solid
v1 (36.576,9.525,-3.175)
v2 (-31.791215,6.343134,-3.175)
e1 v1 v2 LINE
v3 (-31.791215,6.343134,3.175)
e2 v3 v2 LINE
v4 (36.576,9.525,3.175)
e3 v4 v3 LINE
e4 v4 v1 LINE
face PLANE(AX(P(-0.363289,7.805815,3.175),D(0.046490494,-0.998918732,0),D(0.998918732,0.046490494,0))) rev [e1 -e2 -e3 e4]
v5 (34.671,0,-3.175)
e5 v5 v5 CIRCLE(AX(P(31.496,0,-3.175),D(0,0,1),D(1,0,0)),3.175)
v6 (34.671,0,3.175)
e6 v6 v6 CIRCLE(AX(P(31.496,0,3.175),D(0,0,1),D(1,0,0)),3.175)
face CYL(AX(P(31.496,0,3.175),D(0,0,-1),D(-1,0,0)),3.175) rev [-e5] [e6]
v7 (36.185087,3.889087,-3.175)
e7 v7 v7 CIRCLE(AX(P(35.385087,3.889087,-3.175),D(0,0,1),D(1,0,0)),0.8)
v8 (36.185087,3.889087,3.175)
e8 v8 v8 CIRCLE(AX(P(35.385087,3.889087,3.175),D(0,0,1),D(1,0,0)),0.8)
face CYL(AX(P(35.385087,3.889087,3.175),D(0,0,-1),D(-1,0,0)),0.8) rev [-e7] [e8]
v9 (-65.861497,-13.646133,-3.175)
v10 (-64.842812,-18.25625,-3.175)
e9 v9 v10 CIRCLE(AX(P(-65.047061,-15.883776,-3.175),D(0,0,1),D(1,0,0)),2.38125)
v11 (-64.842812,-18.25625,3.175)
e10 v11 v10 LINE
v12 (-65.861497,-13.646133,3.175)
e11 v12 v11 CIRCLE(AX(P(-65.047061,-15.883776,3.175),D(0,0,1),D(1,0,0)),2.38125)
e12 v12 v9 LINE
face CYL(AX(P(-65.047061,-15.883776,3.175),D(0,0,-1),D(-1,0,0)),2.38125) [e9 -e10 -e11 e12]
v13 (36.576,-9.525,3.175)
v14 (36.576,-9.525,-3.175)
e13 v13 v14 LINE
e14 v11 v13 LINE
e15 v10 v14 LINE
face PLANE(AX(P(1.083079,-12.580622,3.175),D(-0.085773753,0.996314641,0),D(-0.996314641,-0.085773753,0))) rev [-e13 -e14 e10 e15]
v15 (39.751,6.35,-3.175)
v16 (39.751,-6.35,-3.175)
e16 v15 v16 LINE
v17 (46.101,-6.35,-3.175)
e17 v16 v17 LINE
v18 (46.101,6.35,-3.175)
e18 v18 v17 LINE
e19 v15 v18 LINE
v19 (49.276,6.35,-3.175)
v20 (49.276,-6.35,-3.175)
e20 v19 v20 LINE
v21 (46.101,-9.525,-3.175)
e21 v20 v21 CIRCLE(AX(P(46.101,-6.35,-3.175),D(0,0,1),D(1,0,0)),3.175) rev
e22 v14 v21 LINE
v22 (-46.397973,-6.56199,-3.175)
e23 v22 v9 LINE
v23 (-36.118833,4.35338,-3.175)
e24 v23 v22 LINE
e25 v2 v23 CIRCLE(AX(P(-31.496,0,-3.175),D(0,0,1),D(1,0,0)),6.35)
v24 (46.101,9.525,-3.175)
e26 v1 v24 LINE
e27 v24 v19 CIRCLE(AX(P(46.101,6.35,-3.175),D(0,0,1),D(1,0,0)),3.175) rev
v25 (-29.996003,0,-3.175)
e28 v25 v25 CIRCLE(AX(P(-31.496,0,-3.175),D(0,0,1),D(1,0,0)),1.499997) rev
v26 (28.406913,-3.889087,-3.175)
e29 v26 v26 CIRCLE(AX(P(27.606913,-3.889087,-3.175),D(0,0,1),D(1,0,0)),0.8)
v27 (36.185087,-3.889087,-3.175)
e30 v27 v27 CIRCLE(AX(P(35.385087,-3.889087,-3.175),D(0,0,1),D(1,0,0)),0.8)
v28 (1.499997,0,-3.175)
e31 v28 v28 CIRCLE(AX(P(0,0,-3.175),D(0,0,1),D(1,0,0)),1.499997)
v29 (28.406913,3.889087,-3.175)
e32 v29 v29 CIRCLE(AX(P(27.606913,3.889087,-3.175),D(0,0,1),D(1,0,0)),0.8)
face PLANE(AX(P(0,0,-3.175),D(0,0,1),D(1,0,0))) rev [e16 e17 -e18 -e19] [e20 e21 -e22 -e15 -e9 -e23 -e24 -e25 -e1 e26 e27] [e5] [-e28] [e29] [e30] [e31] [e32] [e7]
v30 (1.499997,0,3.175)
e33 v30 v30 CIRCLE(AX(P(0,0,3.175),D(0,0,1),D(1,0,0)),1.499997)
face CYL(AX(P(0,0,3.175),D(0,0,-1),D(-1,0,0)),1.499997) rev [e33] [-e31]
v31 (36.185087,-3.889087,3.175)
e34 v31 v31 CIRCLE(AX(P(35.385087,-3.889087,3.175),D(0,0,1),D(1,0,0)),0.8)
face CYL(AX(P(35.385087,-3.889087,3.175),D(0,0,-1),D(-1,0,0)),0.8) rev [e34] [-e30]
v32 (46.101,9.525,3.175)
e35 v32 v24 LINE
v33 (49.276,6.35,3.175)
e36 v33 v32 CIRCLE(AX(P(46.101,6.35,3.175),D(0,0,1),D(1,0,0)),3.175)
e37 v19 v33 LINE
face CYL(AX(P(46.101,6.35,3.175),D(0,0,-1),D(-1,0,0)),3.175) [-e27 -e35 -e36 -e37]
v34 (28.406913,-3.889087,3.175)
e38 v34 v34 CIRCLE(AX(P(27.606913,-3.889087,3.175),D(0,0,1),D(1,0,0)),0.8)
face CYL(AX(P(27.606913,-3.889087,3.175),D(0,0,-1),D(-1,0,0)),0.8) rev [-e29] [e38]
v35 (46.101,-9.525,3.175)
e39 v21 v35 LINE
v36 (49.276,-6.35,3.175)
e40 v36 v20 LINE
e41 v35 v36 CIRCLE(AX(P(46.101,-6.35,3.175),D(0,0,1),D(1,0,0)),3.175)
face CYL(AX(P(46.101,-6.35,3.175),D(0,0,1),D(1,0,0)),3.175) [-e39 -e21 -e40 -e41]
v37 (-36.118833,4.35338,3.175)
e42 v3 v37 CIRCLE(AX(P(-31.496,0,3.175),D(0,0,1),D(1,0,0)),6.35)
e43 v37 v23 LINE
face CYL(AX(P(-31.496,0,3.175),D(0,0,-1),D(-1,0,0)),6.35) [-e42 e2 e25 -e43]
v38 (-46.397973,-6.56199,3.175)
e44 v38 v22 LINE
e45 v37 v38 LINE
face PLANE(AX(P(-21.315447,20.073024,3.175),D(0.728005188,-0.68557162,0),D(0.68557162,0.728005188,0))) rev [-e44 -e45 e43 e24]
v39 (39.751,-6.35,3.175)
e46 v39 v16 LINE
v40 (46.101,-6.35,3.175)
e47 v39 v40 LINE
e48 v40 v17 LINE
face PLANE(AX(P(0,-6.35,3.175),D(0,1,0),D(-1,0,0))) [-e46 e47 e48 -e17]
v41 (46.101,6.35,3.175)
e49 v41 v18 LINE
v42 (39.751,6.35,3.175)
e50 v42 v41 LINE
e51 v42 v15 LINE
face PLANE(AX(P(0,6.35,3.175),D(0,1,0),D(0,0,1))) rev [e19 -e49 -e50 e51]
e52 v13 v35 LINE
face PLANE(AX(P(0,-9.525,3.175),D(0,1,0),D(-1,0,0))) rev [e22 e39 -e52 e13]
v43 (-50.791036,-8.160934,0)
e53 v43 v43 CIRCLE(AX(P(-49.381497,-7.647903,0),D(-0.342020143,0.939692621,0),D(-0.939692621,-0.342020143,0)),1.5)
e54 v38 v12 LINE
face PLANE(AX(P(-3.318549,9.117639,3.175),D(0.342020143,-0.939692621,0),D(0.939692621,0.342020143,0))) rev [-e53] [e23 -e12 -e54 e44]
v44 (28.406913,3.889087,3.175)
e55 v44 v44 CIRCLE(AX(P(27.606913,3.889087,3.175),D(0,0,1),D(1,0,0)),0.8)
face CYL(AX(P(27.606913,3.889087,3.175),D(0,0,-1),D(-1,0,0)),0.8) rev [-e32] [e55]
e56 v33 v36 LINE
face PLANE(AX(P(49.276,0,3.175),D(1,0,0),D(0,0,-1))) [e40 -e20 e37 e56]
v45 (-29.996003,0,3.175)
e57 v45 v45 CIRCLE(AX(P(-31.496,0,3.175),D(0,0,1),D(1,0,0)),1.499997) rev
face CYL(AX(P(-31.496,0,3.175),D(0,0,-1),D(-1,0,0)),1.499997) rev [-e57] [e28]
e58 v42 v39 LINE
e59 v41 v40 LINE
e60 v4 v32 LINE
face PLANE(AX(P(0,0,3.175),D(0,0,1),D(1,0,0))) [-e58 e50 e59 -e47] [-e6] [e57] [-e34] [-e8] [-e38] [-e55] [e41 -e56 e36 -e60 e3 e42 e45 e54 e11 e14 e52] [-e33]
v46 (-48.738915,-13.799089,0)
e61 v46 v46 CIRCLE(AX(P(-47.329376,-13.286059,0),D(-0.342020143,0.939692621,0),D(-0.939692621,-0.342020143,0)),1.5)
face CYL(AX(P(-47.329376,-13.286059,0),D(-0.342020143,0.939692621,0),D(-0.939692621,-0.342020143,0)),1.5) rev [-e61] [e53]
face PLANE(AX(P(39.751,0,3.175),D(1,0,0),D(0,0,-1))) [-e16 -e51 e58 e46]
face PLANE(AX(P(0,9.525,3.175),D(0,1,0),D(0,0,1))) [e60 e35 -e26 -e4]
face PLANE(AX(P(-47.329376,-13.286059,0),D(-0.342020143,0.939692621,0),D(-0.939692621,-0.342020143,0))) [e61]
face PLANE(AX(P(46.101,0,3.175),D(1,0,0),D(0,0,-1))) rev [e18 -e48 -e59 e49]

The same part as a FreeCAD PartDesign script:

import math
import FreeCAD as App
import Part
import Sketcher
Q = App.Units.Quantity


def edges_at(feature, points):
    """Names of the edges that pass closest to the given points."""
    edges = feature.Shape.Edges
    near = lambda p: min(range(len(edges)), key=lambda i: edges[i].distToShape(Part.Vertex(*p))[0])
    return sorted({f"Edge{near(p) + 1}" for p in points})


def add_polygon(sketch, points):
    """Adds a closed chain of lines whose ends are joined by coincident constraints."""
    first, n = sketch.GeometryCount, len(points)
    for a, b in zip(points, points[1:] + points[:1]):
        sketch.addGeometry(Part.LineSegment(App.Vector(*a, 0), App.Vector(*b, 0)), False)
    for i in range(n):
        sketch.addConstraint(Sketcher.Constraint("Coincident", first + i, 2, first + (i + 1) % n, 1))

doc = App.newDocument("Part")
body = doc.addObject("PartDesign::Body", "Body")

# Sketch on XY plane
sketch1 = body.newObject("Sketcher::SketchObject", "Sketch")
sketch1.AttachmentSupport = (doc.getObject("XY_Plane"), [""])
sketch1.MapMode = "FlatFace"
sketch1.addGeometry(Part.LineSegment(App.Vector(49.3, 9.5, 0), App.Vector(36.6, 9.5, 0)), False)  # 0
sketch1.addGeometry(Part.LineSegment(App.Vector(36.6, 9.5, 0), App.Vector(-31.8, 6.3, 0)), False)  # 1
sketch1.addGeometry(Part.ArcOfCircle(Part.Circle(App.Vector(-31.5, 0, 0), App.Vector(0, 0, 1), 6.3), math.radians(93), math.radians(137)), False)  # 2
sketch1.addGeometry(Part.LineSegment(App.Vector(-36.1, 4.4, 0), App.Vector(-46.4, -6.6, 0)), False)  # 3
sketch1.addGeometry(Part.LineSegment(App.Vector(-46.4, -6.6, 0), App.Vector(-65.9, -13.6, 0)), False)  # 4
sketch1.addGeometry(Part.ArcOfCircle(Part.Circle(App.Vector(-65, -15.9, 0), App.Vector(0, 0, 1), 2.4), math.radians(110), math.radians(275)), False)  # 5
sketch1.addGeometry(Part.LineSegment(App.Vector(-64.8, -18.3, 0), App.Vector(36.6, -9.5, 0)), False)  # 6
sketch1.addGeometry(Part.LineSegment(App.Vector(36.6, -9.5, 0), App.Vector(49.3, -9.5, 0)), False)  # 7
sketch1.addGeometry(Part.LineSegment(App.Vector(49.3, -9.5, 0), App.Vector(49.3, 9.5, 0)), False)  # 8
sketch1.addGeometry(Part.Circle(App.Vector(35.4, -3.9, 0), App.Vector(0, 0, 1), 0.8), False)  # 9
sketch1.addGeometry(Part.Circle(App.Vector(27.6, -3.9, 0), App.Vector(0, 0, 1), 0.8), False)  # 10
sketch1.addGeometry(Part.Circle(App.Vector(31.5, 0, 0), App.Vector(0, 0, 1), 3.2), False)  # 11
sketch1.addGeometry(Part.Circle(App.Vector(0, 0, 0), App.Vector(0, 0, 1), 1.5), False)  # 12
sketch1.addGeometry(Part.Circle(App.Vector(-31.5, 0, 0), App.Vector(0, 0, 1), 1.5), False)  # 13
add_polygon(sketch1, [(39.8, -6.3), (39.8, 6.3), (46.1, 6.3), (46.1, -6.3)])  # lines 14-17
sketch1.addGeometry(Part.Circle(App.Vector(35.4, 3.9, 0), App.Vector(0, 0, 1), 0.8), False)  # 18
sketch1.addGeometry(Part.Circle(App.Vector(27.6, 3.9, 0), App.Vector(0, 0, 1), 0.8), False)  # 19
sketch1.addConstraint([
    Sketcher.Constraint("Coincident", 0, 2, 1, 1),
    Sketcher.Constraint("Tangent", 1, 2, 2, 1),
    Sketcher.Constraint("Tangent", 2, 2, 3, 1),
    Sketcher.Constraint("Coincident", 3, 2, 4, 1),
    Sketcher.Constraint("Tangent", 4, 2, 5, 1),
    Sketcher.Constraint("Tangent", 5, 2, 6, 1),
    Sketcher.Constraint("Coincident", 6, 2, 7, 1),
    Sketcher.Constraint("Coincident", 7, 2, 8, 1),
    Sketcher.Constraint("Coincident", 8, 2, 0, 1),
    Sketcher.Constraint("Horizontal", 0),
    Sketcher.Constraint("Horizontal", 7),
    Sketcher.Constraint("Vertical", 8),
    Sketcher.Constraint("Vertical", 14),
    Sketcher.Constraint("Horizontal", 15),
    Sketcher.Constraint("Vertical", 16),
    Sketcher.Constraint("Horizontal", 17),
    Sketcher.Constraint("Coincident", 12, 3, -1, 1),
    Sketcher.Constraint("Coincident", 13, 3, 2, 3),
    Sketcher.Constraint("Equal", 9, 10),
    Sketcher.Constraint("Equal", 12, 13),
    Sketcher.Constraint("Equal", 10, 18),
    Sketcher.Constraint("Equal", 18, 19),
    Sketcher.Constraint("Symmetric", 2, 3, 11, 3, -1, 1),
    Sketcher.Constraint("Symmetric", 9, 3, 18, 3, -1),
    Sketcher.Constraint("Symmetric", 10, 3, 19, 3, -1),
    Sketcher.Constraint("Symmetric", 0, 2, 6, 2, -1),
    Sketcher.Constraint("PointOnObject", 2, 3, -1),
    Sketcher.Constraint("Horizontal", 9, 3, 10, 3),
    Sketcher.Constraint("Equal", 7, 14),
    Sketcher.Constraint("Diameter", 11, Q("0.25 in")),
    Sketcher.Constraint("Radius", 2, Q("0.25 in")),
    Sketcher.Constraint("DistanceX", 0, 2, 0, 1, Q("0.5 in")),
    Sketcher.Constraint("Angle", 4, Q("-160 deg")),
    Sketcher.Constraint("Radius", 5, Q("0.09375 in")),
    Sketcher.Constraint("DistanceX", 15, 1, 15, 2, Q("0.25 in")),
    Sketcher.Constraint("DistanceY", 8, 1, 8, 2, Q("0.75 in")),
    Sketcher.Constraint("DistanceX", 11, 3, 0, 2, Q("0.2 in")),
    Sketcher.Constraint("Diameter", 9, Q("1.6 mm")),
    Sketcher.Constraint("DistanceX", 2, 3, -1, 1, Q("1.24 in")),
    Sketcher.Constraint("DistanceY", -1, 1, 14, 2, Q("0.25 in")),
    Sketcher.Constraint("DistanceY", 5, 2, -1, 1, Q("0.71875 in")),
    Sketcher.Constraint("DistanceX", -1, 1, 14, 2, Q("1.565 in")),
    Sketcher.Constraint("Diameter", 12, Q("2.999994 mm")),
    Sketcher.Constraint("Distance", 4, Q("20.712649 mm")),
    Sketcher.Constraint("Distance", 6, Q("101.79396 mm")),
    Sketcher.Constraint("DistanceX", 5, 3, 9, 3, Q("100.432148 mm")),
    Sketcher.Constraint("DistanceY", 5, 3, 9, 3, Q("11.994688 mm")),
    Sketcher.Constraint("DistanceX", -1, 1, 10, 3, Q("27.606913 mm")),
])
pad1 = body.newObject("PartDesign::Pad", "Pad")
pad1.Profile = sketch1
pad1.Length = Q("0.25 in")
pad1.Midplane = True
doc.recompute()

fillet = body.newObject("PartDesign::Fillet", "Fillet")
fillet.Base = (pad1, edges_at(pad1, [(49.276, 9.525, 0), (49.276, -9.525, 0)]))
fillet.Radius = Q("0.125 in")

# Sketch on an angled plane
sketch2 = body.newObject("Sketcher::SketchObject", "Sketch001")
sketch2.Placement = App.Placement(App.Vector(-3.318549, 9.117639, 0), App.Rotation(App.Vector(0.939692621, 0.342020143, 0), App.Vector(0, 0, -1), App.Vector(-0.342020143, 0.939692621, 0), "ZXY"))
sketch2.addGeometry(Part.Circle(App.Vector(-49, 0, 0), App.Vector(0, 0, 1), 1.5), False)
sketch2.addConstraint([
    Sketcher.Constraint("PointOnObject", 0, 3, -1),
    Sketcher.Constraint("Diameter", 0, Q("3 mm")),
    Sketcher.Constraint("DistanceX", 0, 3, -1, 1, Q("49.019166 mm")),
])
pocket1 = body.newObject("PartDesign::Pocket", "Pocket")
pocket1.Profile = sketch2
pocket1.Length = 6

doc.recompute()
